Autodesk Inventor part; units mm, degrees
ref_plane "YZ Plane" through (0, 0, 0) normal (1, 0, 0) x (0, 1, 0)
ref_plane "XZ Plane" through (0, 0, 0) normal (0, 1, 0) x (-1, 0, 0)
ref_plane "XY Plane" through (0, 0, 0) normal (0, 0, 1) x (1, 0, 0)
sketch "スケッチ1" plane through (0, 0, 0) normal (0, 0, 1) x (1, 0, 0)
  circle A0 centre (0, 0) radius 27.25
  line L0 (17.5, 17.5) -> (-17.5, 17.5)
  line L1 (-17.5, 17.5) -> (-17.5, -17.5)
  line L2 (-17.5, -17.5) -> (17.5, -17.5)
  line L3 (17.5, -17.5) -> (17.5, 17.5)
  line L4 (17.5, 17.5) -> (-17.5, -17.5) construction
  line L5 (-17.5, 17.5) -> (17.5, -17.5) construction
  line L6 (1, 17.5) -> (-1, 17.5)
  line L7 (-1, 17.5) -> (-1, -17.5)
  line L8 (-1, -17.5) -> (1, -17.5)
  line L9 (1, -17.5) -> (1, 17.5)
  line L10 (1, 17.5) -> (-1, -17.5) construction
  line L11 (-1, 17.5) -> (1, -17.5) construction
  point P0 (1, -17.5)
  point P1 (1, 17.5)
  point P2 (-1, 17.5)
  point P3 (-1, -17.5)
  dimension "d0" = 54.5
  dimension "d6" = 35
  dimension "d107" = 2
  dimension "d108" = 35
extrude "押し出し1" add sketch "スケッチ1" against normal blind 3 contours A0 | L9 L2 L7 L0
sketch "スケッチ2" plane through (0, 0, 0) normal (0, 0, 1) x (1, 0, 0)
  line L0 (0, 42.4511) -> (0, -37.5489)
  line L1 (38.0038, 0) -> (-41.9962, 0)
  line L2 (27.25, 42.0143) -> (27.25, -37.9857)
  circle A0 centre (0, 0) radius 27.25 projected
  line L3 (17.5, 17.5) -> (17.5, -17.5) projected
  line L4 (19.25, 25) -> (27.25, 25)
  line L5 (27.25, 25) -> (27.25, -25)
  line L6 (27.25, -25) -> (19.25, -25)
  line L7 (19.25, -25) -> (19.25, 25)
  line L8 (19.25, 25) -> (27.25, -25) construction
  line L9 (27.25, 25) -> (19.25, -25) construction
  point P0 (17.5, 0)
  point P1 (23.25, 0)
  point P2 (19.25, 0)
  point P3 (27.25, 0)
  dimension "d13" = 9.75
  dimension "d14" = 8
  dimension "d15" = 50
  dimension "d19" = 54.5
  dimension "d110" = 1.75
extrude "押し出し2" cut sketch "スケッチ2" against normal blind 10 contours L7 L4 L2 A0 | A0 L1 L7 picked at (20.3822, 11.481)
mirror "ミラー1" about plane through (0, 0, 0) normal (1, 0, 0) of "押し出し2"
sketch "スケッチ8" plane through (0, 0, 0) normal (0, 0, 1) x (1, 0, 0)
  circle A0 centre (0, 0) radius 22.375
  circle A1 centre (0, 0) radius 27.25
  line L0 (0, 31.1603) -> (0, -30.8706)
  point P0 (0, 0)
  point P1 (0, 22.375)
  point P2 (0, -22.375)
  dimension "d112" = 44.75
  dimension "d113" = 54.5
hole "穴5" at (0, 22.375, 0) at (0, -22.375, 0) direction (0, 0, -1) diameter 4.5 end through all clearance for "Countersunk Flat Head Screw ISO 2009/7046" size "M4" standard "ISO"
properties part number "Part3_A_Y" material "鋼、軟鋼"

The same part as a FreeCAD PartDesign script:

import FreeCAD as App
import Part
import Sketcher

V = App.Vector

doc = App.newDocument("Part")
params = doc.addObject("Spreadsheet::Sheet", "Params")
for row, (alias, value) in enumerate([
    ("sketch1_diameter", "54.5 mm"),
    ("sketch1_height", "35 mm"),
    ("pad1_length", "3 mm"),
    ("sketch2_width", "8 mm"),
    ("sketch2_height", "25 mm"),
    ("pocket1_length", "10 mm"),
    ("sketch3_diameter", "4.5 mm"),
    ("hole_diameter", "4.5 mm"),
], start=1):
    params.set(f"A{row}", alias)
    params.set(f"B{row}", "=" + value)
    params.setAlias(f"B{row}", alias)

body = doc.addObject("PartDesign::Body", "Body")

sketch1 = body.newObject("Sketcher::SketchObject", "Sketch")
sketch1.AttachmentSupport = (doc.getObject("XY_Plane"), [""])
sketch1.MapMode = "FlatFace"
sketch1.addGeometry([
    Part.Circle(V(0, 0, 0), V(0, 0, 1), 27.25),
    Part.LineSegment(V(1, 17.5, 0), V(17.5, 17.5, 0)),
    Part.LineSegment(V(17.5, 17.5, 0), V(17.5, -17.5, 0)),
    Part.LineSegment(V(17.5, -17.5, 0), V(1, -17.5, 0)),
    Part.LineSegment(V(1, -17.5, 0), V(1, 17.5, 0)),
    Part.LineSegment(V(-17.5, 17.5, 0), V(-1, 17.5, 0)),
    Part.LineSegment(V(-1, 17.5, 0), V(-1, -17.5, 0)),
    Part.LineSegment(V(-1, -17.5, 0), V(-17.5, -17.5, 0)),
    Part.LineSegment(V(-17.5, -17.5, 0), V(-17.5, 17.5, 0)),
], False)
sketch1.addConstraint([
    Sketcher.Constraint("Coincident", 1, 2, 2, 1),
    Sketcher.Constraint("Coincident", 2, 2, 3, 1),
    Sketcher.Constraint("Coincident", 3, 2, 4, 1),
    Sketcher.Constraint("Coincident", 4, 2, 1, 1),
    Sketcher.Constraint("Coincident", 5, 2, 6, 1),
    Sketcher.Constraint("Coincident", 6, 2, 7, 1),
    Sketcher.Constraint("Coincident", 7, 2, 8, 1),
    Sketcher.Constraint("Coincident", 8, 2, 5, 1),
    Sketcher.Constraint("Horizontal", 1),
    Sketcher.Constraint("Vertical", 2),
    Sketcher.Constraint("Horizontal", 3),
    Sketcher.Constraint("Vertical", 4),
    Sketcher.Constraint("Horizontal", 5),
    Sketcher.Constraint("Vertical", 6),
    Sketcher.Constraint("Horizontal", 7),
    Sketcher.Constraint("Vertical", 8),
    Sketcher.Constraint("Coincident", 0, 3, -1, 1),
    Sketcher.Constraint("Symmetric", 3, 2, 5, 2, -1, 1),
    Sketcher.Constraint("Symmetric", 1, 2, 7, 2, -1, 1),
    Sketcher.Constraint("Horizontal", 4, 2, 5, 2),
    Sketcher.Constraint("Diameter", 0, 54.5),
    Sketcher.Constraint("DistanceY", 2, 2, 2, 1, 35.0),
    Sketcher.Constraint("DistanceX", 5, 2, 4, 2, 2.0),
    Sketcher.Constraint("DistanceX", 7, 2, 2, 2, 35.0),
])
sketch1.setExpression("Constraints[20]", "Params.sketch1_diameter")
sketch1.setExpression("Constraints[21]", "Params.sketch1_height")
pad1 = body.newObject("PartDesign::Pad", "Pad")
pad1.Profile = sketch1
pad1.setExpression("Length", "Params.pad1_length")
pad1.Reversed = True

sketch2 = body.newObject("Sketcher::SketchObject", "Sketch001")
sketch2.AttachmentSupport = (doc.getObject("XY_Plane"), [""])
sketch2.MapMode = "FlatFace"
sketch2.addGeometry([
    Part.LineSegment(V(19.25, 25, 0), V(19.25, 0, 0)),
    Part.LineSegment(V(19.25, 0, 0), V(27.25, 0, 0)),
    Part.LineSegment(V(27.25, 0, 0), V(27.25, 25, 0)),
    Part.LineSegment(V(27.25, 25, 0), V(19.25, 25, 0)),
], False)
sketch2.addConstraint([
    Sketcher.Constraint("Coincident", 0, 2, 1, 1),
    Sketcher.Constraint("Coincident", 1, 2, 2, 1),
    Sketcher.Constraint("Coincident", 2, 2, 3, 1),
    Sketcher.Constraint("Coincident", 3, 2, 0, 1),
    Sketcher.Constraint("Vertical", 0),
    Sketcher.Constraint("Horizontal", 1),
    Sketcher.Constraint("Vertical", 2),
    Sketcher.Constraint("Horizontal", 3),
    Sketcher.Constraint("PointOnObject", 0, 2, -1),
    Sketcher.Constraint("DistanceX", 1, 1, 1, 2, 8.0),
    Sketcher.Constraint("DistanceY", 0, 2, 0, 1, 25.0),
    Sketcher.Constraint("DistanceX", -1, 1, 0, 2, 19.25),
])
sketch2.setExpression("Constraints[9]", "Params.sketch2_width")
sketch2.setExpression("Constraints[10]", "Params.sketch2_height")
pocket1 = body.newObject("PartDesign::Pocket", "Pocket")
pocket1.Profile = sketch2
pocket1.setExpression("Length", "Params.pocket1_length")
doc.recompute()

mirrored = body.newObject("PartDesign::Mirrored", "Mirrored")
mirrored.Originals = [pocket1]
mirrored.MirrorPlane = (doc.getObject("YZ_Plane"), [""])
body.Tip = mirrored

sketch3 = body.newObject("Sketcher::SketchObject", "Sketch002")
sketch3.AttachmentSupport = (doc.getObject("XY_Plane"), [""])
sketch3.MapMode = "FlatFace"
sketch3.addGeometry([
    Part.Circle(V(0, 22.375, 0), V(0, 0, 1), 2.25),
    Part.Circle(V(0, -22.375, 0), V(0, 0, 1), 2.25),
], False)
sketch3.addConstraint([
    Sketcher.Constraint("Equal", 0, 1),
    Sketcher.Constraint("Symmetric", 0, 3, 1, 3, -1, 1),
    Sketcher.Constraint("PointOnObject", 0, 3, -2),
    Sketcher.Constraint("Diameter", 0, 4.5),
    Sketcher.Constraint("DistanceY", 1, 3, 0, 3, 44.75),
])
sketch3.setExpression("Constraints[3]", "Params.sketch3_diameter")
doc.recompute()
hole = body.newObject("PartDesign::Hole", "Hole")
hole.Profile = sketch3
hole.ThreadType = "None"
hole.setExpression("Diameter", "Params.hole_diameter")
hole.DepthType = "ThroughAll"

doc.recompute()
